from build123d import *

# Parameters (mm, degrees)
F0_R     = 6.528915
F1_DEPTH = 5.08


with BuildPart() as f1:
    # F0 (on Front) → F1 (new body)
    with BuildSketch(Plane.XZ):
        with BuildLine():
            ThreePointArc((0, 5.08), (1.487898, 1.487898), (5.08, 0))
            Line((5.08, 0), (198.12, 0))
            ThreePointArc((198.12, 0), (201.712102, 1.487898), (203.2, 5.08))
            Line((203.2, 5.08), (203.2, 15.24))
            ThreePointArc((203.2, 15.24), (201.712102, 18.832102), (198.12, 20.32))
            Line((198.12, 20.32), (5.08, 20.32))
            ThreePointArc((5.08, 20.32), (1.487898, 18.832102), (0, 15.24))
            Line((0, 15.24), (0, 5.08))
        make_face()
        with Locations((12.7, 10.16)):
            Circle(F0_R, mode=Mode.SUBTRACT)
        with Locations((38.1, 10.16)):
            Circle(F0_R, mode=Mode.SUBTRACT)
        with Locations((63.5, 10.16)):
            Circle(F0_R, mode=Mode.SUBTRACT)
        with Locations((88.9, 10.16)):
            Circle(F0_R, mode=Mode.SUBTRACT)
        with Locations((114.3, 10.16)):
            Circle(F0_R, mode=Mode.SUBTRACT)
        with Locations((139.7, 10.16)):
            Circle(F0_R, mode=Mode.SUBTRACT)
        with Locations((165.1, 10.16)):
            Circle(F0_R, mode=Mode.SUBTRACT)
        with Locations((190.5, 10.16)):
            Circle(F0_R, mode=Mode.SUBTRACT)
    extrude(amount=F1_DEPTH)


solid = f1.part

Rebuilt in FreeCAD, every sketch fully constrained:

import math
import FreeCAD as App
import Part
import Sketcher

V = App.Vector
Q = App.Units.Quantity

doc = App.newDocument("Part")
body = doc.addObject("PartDesign::Body", "Body")

# Sketch on XZ plane
sketch1 = body.newObject("Sketcher::SketchObject", "Sketch")
sketch1.AttachmentSupport = (doc.getObject("XZ_Plane"), [""])
sketch1.MapMode = "FlatFace"
sketch1.addGeometry([
    Part.ArcOfCircle(Part.Circle(V(5, 5, 0), V(0, 0, 1), 5), math.radians(-180), math.radians(-90)),  # 0
    Part.LineSegment(V(5, 0, 0), V(198, 0, 0)),  # 1
    Part.ArcOfCircle(Part.Circle(V(198, 5, 0), V(0, 0, 1), 5), math.radians(-90), math.radians(0)),  # 2
    Part.LineSegment(V(203, 5, 0), V(203, 15, 0)),  # 3
    Part.ArcOfCircle(Part.Circle(V(198, 15, 0), V(0, 0, 1), 5), math.radians(0), math.radians(90)),  # 4
    Part.LineSegment(V(198, 20, 0), V(5, 20, 0)),  # 5
    Part.ArcOfCircle(Part.Circle(V(5, 15, 0), V(0, 0, 1), 5), math.radians(90), math.radians(180)),  # 6
    Part.LineSegment(V(0, 15, 0), V(0, 5, 0)),  # 7
    Part.Circle(V(13, 10, 0), V(0, 0, 1), 7),  # 8
    Part.Circle(V(38, 10, 0), V(0, 0, 1), 7),  # 9
    Part.Circle(V(64, 10, 0), V(0, 0, 1), 7),  # 10
    Part.Circle(V(89, 10, 0), V(0, 0, 1), 7),  # 11
    Part.Circle(V(114, 10, 0), V(0, 0, 1), 7),  # 12
    Part.Circle(V(140, 10, 0), V(0, 0, 1), 7),  # 13
    Part.Circle(V(165, 10, 0), V(0, 0, 1), 7),  # 14
    Part.Circle(V(190, 10, 0), V(0, 0, 1), 7),  # 15
], False)
sketch1.addConstraint([
    Sketcher.Constraint("Tangent", 0, 2, 1, 1),
    Sketcher.Constraint("Tangent", 1, 2, 2, 1),
    Sketcher.Constraint("Tangent", 2, 2, 3, 1),
    Sketcher.Constraint("Tangent", 3, 2, 4, 1),
    Sketcher.Constraint("Tangent", 4, 2, 5, 1),
    Sketcher.Constraint("Tangent", 5, 2, 6, 1),
    Sketcher.Constraint("Tangent", 6, 2, 7, 1),
    Sketcher.Constraint("Tangent", 7, 2, 0, 1),
    Sketcher.Constraint("Horizontal", 1),
    Sketcher.Constraint("Vertical", 3),
    Sketcher.Constraint("Horizontal", 5),
    Sketcher.Constraint("Vertical", 7),
    Sketcher.Constraint("Equal", 0, 2),
    Sketcher.Constraint("Equal", 2, 4),
    Sketcher.Constraint("Equal", 4, 6),
    Sketcher.Constraint("Equal", 8, 9),
    Sketcher.Constraint("Equal", 9, 10),
    Sketcher.Constraint("Equal", 10, 11),
    Sketcher.Constraint("Equal", 11, 12),
    Sketcher.Constraint("Equal", 12, 13),
    Sketcher.Constraint("Equal", 13, 14),
    Sketcher.Constraint("Equal", 14, 15),
    Sketcher.Constraint("PointOnObject", 0, 2, -1),
    Sketcher.Constraint("PointOnObject", 6, 2, -2),
    Sketcher.Constraint("Horizontal", 8, 3, 9, 3),
    Sketcher.Constraint("Horizontal", 9, 3, 10, 3),
    Sketcher.Constraint("Horizontal", 10, 3, 11, 3),
    Sketcher.Constraint("Horizontal", 11, 3, 12, 3),
    Sketcher.Constraint("Horizontal", 12, 3, 13, 3),
    Sketcher.Constraint("Horizontal", 13, 3, 14, 3),
    Sketcher.Constraint("Horizontal", 14, 3, 15, 3),
    Sketcher.Constraint("Radius", 0, Q("0.2000001 in")),
    Sketcher.Constraint("DistanceX", 1, 1, 1, 2, Q("7.6 in")),
    Sketcher.Constraint("DistanceY", 3, 1, 3, 2, Q("0.4 in")),
    Sketcher.Constraint("DistanceX", 8, 3, 9, 3, Q("1 in")),
    Sketcher.Constraint("DistanceX", 9, 3, 10, 3, Q("1 in")),
    Sketcher.Constraint("DistanceX", 10, 3, 11, 3, Q("1 in")),
    Sketcher.Constraint("DistanceX", 11, 3, 12, 3, Q("1 in")),
    Sketcher.Constraint("DistanceX", 12, 3, 13, 3, Q("1 in")),
    Sketcher.Constraint("DistanceX", 13, 3, 14, 3, Q("1 in")),
    Sketcher.Constraint("DistanceX", 14, 3, 15, 3, Q("1 in")),
    Sketcher.Constraint("DistanceX", -1, 1, 8, 3, Q("0.5 in")),
    Sketcher.Constraint("DistanceY", -1, 1, 8, 3, Q("0.4 in")),
    Sketcher.Constraint("Diameter", 8, 13.05783),
])
pad1 = body.newObject("PartDesign::Pad", "Pad")
pad1.Profile = sketch1
pad1.Length = Q("0.2 in")

doc.recompute()
